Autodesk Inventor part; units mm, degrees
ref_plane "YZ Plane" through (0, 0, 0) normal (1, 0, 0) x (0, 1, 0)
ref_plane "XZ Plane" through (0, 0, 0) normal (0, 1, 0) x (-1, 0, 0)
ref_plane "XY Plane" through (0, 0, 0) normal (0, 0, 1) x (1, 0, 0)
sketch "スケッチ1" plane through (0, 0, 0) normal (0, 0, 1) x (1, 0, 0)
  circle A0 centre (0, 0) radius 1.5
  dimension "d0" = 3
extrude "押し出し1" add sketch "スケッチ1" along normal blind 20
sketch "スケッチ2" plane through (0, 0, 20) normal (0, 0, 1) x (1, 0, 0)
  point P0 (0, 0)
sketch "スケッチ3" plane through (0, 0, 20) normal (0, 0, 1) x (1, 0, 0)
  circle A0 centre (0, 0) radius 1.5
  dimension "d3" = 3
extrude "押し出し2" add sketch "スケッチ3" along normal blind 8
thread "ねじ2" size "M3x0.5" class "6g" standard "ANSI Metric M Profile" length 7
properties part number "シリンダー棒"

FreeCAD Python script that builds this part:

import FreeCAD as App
import Part
import Sketcher

V = App.Vector
Q = App.Units.Quantity

doc = App.newDocument("Part")
body = doc.addObject("PartDesign::Body", "Body")

sketch1 = body.newObject("Sketcher::SketchObject", "Sketch")
sketch1.AttachmentSupport = (doc.getObject("XY_Plane"), [""])
sketch1.MapMode = "FlatFace"
sketch1.addGeometry(Part.Circle(V(0, 0, 0), V(0, 0, 1), 1.5), False)
sketch1.addConstraint([
    Sketcher.Constraint("Coincident", 0, 3, -1, 1),
    Sketcher.Constraint("Diameter", 0, Q("3 mm")),
])
pad1 = body.newObject("PartDesign::Pad", "Pad")
pad1.Profile = sketch1
pad1.Length = 20

sketch2 = body.newObject("Sketcher::SketchObject", "Sketch001")
sketch2.AttachmentSupport = (doc.getObject("XY_Plane"), [""])
sketch2.MapMode = "FlatFace"
sketch2.AttachmentOffset = App.Placement(V(0, 0, 20), App.Rotation())
sketch2.addGeometry(Part.Circle(V(0, 0, 0), V(0, 0, 1), 1.5), False)
sketch2.addConstraint([
    Sketcher.Constraint("Coincident", 0, 3, -1, 1),
    Sketcher.Constraint("Diameter", 0, Q("3 mm")),
])
pad2 = body.newObject("PartDesign::Pad", "Pad001")
pad2.Profile = sketch2
pad2.Length = 8

doc.recompute()
